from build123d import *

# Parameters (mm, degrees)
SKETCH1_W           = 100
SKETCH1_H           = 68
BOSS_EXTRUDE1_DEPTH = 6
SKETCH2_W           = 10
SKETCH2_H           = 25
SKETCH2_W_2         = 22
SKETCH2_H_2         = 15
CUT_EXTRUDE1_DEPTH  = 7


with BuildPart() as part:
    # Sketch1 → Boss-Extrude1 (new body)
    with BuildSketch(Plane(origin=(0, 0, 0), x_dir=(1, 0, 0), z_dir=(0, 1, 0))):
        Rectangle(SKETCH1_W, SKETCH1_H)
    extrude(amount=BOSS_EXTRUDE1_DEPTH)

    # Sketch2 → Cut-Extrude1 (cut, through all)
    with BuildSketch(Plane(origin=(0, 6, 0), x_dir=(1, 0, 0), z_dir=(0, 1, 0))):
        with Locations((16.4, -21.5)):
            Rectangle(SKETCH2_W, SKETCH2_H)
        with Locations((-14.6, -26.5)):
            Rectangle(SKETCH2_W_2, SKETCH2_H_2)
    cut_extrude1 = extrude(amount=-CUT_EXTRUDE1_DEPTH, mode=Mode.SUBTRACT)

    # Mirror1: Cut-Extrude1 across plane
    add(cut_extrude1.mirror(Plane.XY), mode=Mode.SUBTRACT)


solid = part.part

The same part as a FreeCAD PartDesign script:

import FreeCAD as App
import Part
import Sketcher
from FreeCAD import Vector


def add_polygon(sketch, points):
    """Adds a closed chain of lines whose ends are joined by coincident constraints."""
    first, n = sketch.GeometryCount, len(points)
    for a, b in zip(points, points[1:] + points[:1]):
        sketch.addGeometry(Part.LineSegment(App.Vector(*a, 0), App.Vector(*b, 0)), False)
    for i in range(n):
        sketch.addConstraint(Sketcher.Constraint("Coincident", first + i, 2, first + (i + 1) % n, 1))

doc = App.newDocument("Part")
body = doc.addObject("PartDesign::Body", "Body")

# Sketch on XZ plane
sketch1 = doc.addObject("Sketcher::SketchObject", "Sketch")
body.addObject(sketch1)
sketch1.AttachmentSupport = (doc.XZ_Plane, [""])
sketch1.MapMode = "FlatFace"
add_polygon(sketch1, [(-50, -34), (-50, 34), (50, 34), (50, -34)])  # lines 0-3
sketch1.addConstraint([
    Sketcher.Constraint("Vertical", 0),
    Sketcher.Constraint("Horizontal", 1),
    Sketcher.Constraint("Vertical", 2),
    Sketcher.Constraint("Horizontal", 3),
    Sketcher.Constraint("Symmetric", 0, 2, 2, 2, -1, 1),
    Sketcher.Constraint("DistanceX", 1, 1, 1, 2, 100.0),
    Sketcher.Constraint("DistanceY", 0, 1, 0, 2, 68.0),
])
pad1 = doc.addObject("PartDesign::Pad", "Pad")
body.addObject(pad1)
pad1.Profile = sketch1
pad1.Length = 6
pad1.Reversed = True

# Sketch on XZ plane
sketch2 = doc.addObject("Sketcher::SketchObject", "Sketch001")
body.addObject(sketch2)
sketch2.AttachmentSupport = (doc.XZ_Plane, [""])
sketch2.MapMode = "FlatFace"
sketch2.AttachmentOffset = App.Placement(Vector(0, 0, -6), App.Rotation())
add_polygon(sketch2, [(11.4, 9), (11.4, 34), (21.4, 34), (21.4, 9)])  # lines 0-3
add_polygon(sketch2, [(-25.6, 19), (-25.6, 34), (-3.6, 34), (-3.6, 19)])  # lines 4-7
sketch2.addConstraint([
    Sketcher.Constraint("Vertical", 0),
    Sketcher.Constraint("Horizontal", 1),
    Sketcher.Constraint("Vertical", 2),
    Sketcher.Constraint("Horizontal", 3),
    Sketcher.Constraint("Vertical", 4),
    Sketcher.Constraint("Horizontal", 5),
    Sketcher.Constraint("Vertical", 6),
    Sketcher.Constraint("Horizontal", 7),
    Sketcher.Constraint("Horizontal", 1, 2, 4, 2),
    Sketcher.Constraint("DistanceX", 1, 1, 1, 2, 10.0),
    Sketcher.Constraint("DistanceX", 5, 1, 5, 2, 22.0),
    Sketcher.Constraint("DistanceY", 0, 1, 0, 2, 25.0),
    Sketcher.Constraint("DistanceY", 4, 1, 4, 2, 15.0),
    Sketcher.Constraint("DistanceY", -1, 1, 0, 2, 34.0),
    Sketcher.Constraint("DistanceX", 4, 2, 0, 2, 37.0),
    Sketcher.Constraint("DistanceX", -1, 1, 0, 2, 11.4),
])
pocket1 = doc.addObject("PartDesign::Pocket", "Pocket")
body.addObject(pocket1)
pocket1.Profile = sketch2
pocket1.Type = "ThroughAll"
pocket1.Reversed = True
doc.recompute()

mirrored = doc.addObject("PartDesign::Mirrored", "Mirrored")
body.addObject(mirrored)
mirrored.Originals = [pocket1]
mirrored.MirrorPlane = (doc.XY_Plane, [""])
body.Tip = mirrored

doc.recompute()
